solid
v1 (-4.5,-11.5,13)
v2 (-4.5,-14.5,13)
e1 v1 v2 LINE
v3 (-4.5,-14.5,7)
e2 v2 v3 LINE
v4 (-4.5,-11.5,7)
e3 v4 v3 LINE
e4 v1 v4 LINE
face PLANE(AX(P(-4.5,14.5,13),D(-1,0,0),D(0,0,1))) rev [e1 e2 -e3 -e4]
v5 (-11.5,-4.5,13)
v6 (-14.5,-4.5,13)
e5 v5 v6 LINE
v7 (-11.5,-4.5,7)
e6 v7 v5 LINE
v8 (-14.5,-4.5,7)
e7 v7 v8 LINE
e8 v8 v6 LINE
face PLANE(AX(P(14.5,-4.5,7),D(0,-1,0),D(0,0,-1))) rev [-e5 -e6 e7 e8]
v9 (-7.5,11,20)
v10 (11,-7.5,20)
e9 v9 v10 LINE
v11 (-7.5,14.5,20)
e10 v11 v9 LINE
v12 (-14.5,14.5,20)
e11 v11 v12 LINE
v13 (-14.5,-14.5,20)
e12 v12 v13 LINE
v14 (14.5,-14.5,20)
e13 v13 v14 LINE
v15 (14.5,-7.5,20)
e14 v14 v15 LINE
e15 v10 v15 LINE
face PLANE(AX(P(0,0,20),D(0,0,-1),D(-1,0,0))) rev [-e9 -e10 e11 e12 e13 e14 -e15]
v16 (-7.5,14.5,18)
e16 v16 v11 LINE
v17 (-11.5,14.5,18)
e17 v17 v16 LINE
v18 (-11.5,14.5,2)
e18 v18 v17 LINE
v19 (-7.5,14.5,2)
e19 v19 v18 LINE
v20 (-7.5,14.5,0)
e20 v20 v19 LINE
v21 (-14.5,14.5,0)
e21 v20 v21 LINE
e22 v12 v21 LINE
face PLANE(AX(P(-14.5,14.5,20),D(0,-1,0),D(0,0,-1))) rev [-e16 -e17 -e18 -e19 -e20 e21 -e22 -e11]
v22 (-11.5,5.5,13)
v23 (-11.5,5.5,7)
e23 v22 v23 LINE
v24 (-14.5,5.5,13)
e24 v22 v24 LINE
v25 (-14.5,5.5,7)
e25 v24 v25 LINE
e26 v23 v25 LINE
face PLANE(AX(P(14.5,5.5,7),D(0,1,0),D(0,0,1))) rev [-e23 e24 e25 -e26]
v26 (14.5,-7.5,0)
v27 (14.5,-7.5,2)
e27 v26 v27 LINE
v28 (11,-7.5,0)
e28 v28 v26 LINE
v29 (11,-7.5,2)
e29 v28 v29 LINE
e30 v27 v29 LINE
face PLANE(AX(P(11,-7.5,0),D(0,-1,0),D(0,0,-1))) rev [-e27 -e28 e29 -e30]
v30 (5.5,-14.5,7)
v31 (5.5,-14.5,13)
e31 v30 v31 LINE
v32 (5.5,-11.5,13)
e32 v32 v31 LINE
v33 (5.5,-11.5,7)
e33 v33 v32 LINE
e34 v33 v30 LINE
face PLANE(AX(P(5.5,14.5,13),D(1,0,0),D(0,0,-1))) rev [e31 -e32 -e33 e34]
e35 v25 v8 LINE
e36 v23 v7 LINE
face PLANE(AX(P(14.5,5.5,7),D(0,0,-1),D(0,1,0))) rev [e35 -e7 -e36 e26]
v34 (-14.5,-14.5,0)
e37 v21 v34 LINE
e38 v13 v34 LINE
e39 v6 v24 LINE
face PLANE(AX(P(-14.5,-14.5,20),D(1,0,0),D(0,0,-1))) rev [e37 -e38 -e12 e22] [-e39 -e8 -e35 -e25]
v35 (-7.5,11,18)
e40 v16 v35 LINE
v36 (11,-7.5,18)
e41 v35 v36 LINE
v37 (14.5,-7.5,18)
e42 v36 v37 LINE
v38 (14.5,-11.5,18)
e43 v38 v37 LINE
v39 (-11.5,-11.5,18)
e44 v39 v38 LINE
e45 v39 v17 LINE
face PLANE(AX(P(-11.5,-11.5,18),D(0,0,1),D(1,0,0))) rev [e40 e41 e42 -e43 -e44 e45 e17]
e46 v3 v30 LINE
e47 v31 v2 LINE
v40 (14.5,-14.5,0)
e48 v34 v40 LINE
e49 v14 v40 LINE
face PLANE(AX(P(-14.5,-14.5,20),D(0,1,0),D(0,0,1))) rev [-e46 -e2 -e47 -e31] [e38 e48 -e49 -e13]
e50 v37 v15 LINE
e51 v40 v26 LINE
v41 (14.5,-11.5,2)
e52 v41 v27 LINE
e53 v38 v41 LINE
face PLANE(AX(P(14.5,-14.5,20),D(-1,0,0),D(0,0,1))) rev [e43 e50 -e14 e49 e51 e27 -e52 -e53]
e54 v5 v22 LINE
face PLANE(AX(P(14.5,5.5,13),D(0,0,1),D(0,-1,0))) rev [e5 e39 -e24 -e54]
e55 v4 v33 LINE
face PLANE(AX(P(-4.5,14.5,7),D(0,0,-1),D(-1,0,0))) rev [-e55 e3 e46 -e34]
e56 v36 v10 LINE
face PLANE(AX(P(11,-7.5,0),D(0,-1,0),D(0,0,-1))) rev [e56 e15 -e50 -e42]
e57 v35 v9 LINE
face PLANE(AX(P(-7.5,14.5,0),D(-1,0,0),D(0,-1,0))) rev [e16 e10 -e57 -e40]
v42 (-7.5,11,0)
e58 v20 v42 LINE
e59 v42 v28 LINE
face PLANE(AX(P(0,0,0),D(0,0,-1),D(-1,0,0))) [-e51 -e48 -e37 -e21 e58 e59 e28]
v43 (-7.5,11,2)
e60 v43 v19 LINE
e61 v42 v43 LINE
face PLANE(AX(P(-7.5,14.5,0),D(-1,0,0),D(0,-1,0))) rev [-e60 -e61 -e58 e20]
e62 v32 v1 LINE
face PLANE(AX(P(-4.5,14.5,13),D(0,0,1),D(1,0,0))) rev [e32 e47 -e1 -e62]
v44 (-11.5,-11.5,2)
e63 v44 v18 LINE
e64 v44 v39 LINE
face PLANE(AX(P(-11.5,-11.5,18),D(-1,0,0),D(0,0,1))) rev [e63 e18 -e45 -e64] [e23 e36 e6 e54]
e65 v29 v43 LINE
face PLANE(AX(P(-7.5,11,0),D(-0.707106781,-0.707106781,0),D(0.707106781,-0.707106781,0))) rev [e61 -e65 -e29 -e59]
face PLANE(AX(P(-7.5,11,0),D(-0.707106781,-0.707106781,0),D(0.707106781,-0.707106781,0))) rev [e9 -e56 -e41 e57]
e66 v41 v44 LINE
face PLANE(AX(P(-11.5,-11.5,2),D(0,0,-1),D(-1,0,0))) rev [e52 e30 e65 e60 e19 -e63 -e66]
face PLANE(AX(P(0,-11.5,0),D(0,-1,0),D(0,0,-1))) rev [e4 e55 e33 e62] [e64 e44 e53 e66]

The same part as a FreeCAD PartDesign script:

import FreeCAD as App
import Part
import Sketcher
Q = App.Units.Quantity


def add_polygon(sketch, points):
    """Adds a closed chain of lines whose ends are joined by coincident constraints."""
    first, n = sketch.GeometryCount, len(points)
    for a, b in zip(points, points[1:] + points[:1]):
        sketch.addGeometry(Part.LineSegment(App.Vector(*a, 0), App.Vector(*b, 0)), False)
    for i in range(n):
        sketch.addConstraint(Sketcher.Constraint("Coincident", first + i, 2, first + (i + 1) % n, 1))

doc = App.newDocument("Part")
body = doc.addObject("PartDesign::Body", "Body")

# Sketch on XY plane
sketch1 = body.newObject("Sketcher::SketchObject", "Sketch")
sketch1.AttachmentSupport = (doc.getObject("XY_Plane"), [""])
sketch1.MapMode = "FlatFace"
add_polygon(sketch1, [(-14, 14), (-14, -14), (14, -14), (14, 14)])  # lines 0-3
sketch1.addConstraint([
    Sketcher.Constraint("Vertical", 0),
    Sketcher.Constraint("Horizontal", 1),
    Sketcher.Constraint("Vertical", 2),
    Sketcher.Constraint("Horizontal", 3),
    Sketcher.Constraint("Symmetric", 0, 2, 2, 2, -1, 1),
    Sketcher.Constraint("Equal", 3, 0),
    Sketcher.Constraint("DistanceX", 1, 1, 1, 2, Q("29 mm")),
])
pad1 = body.newObject("PartDesign::Pad", "Pad")
pad1.Profile = sketch1
pad1.Length = 20

# Sketch on XZ plane
sketch2 = body.newObject("Sketcher::SketchObject", "Sketch001")
sketch2.AttachmentSupport = (doc.getObject("XZ_Plane"), [""])
sketch2.MapMode = "FlatFace"
sketch2.AttachmentOffset = App.Placement(App.Vector(0, 0, -14.5), App.Rotation())
add_polygon(sketch2, [(-12, 2), (-12, 18), (14, 18), (14, 2)])  # lines 0-3
sketch2.addConstraint([
    Sketcher.Constraint("Vertical", 0),
    Sketcher.Constraint("Horizontal", 1),
    Sketcher.Constraint("Vertical", 2),
    Sketcher.Constraint("Horizontal", 3),
    Sketcher.Constraint("DistanceX", 1, 1, 1, 2, Q("26 mm")),
    Sketcher.Constraint("DistanceY", 0, 1, 0, 2, Q("16 mm")),
    Sketcher.Constraint("DistanceY", -1, 1, 0, 2, Q("18 mm")),
    Sketcher.Constraint("DistanceX", 0, 2, -1, 1, Q("11.5 mm")),
])
pocket1 = body.newObject("PartDesign::Pocket", "Pocket")
pocket1.Profile = sketch2
pocket1.Length = 26
pocket1.Reversed = True

# Sketch on XY plane
sketch3 = body.newObject("Sketcher::SketchObject", "Sketch002")
sketch3.AttachmentSupport = (doc.getObject("XY_Plane"), [""])
sketch3.MapMode = "FlatFace"
sketch3.AttachmentOffset = App.Placement(App.Vector(0, 0, 20), App.Rotation())
add_polygon(sketch3, [(-7.5, 14.5), (-7.5, 11), (11, -7.5), (14.5, -7.5), (14.5, 14.5)])  # lines 0-4
sketch3.addConstraint([
    Sketcher.Constraint("Vertical", 0),
    Sketcher.Constraint("Horizontal", 2),
    Sketcher.Constraint("Vertical", 3),
    Sketcher.Constraint("Horizontal", 4),
    Sketcher.Constraint("Equal", 2, 0),
    Sketcher.Constraint("Equal", 4, 3),
    Sketcher.Constraint("DistanceX", 4, 2, 4, 1, Q("22 mm")),
    Sketcher.Constraint("DistanceX", 2, 1, 2, 2, Q("3.5 mm")),
    Sketcher.Constraint("DistanceY", -1, 1, 0, 2, Q("11 mm")),
    Sketcher.Constraint("DistanceX", -1, 1, 1, 2, Q("11 mm")),
])
pocket2 = body.newObject("PartDesign::Pocket", "Pocket001")
pocket2.Profile = sketch3
pocket2.Type = "ThroughAll"

# Sketch on XZ plane
sketch4 = body.newObject("Sketcher::SketchObject", "Sketch003")
sketch4.AttachmentSupport = (doc.getObject("XZ_Plane"), [""])
sketch4.MapMode = "FlatFace"
sketch4.AttachmentOffset = App.Placement(App.Vector(0, 0, 14.5), App.Rotation())
add_polygon(sketch4, [(-4, 13), (-4, 7), (6, 7), (6, 13)])  # lines 0-3
sketch4.addConstraint([
    Sketcher.Constraint("Vertical", 0),
    Sketcher.Constraint("Horizontal", 1),
    Sketcher.Constraint("Vertical", 2),
    Sketcher.Constraint("Horizontal", 3),
    Sketcher.Constraint("DistanceX", 1, 1, 1, 2, Q("10 mm")),
    Sketcher.Constraint("DistanceY", 0, 2, 0, 1, Q("6 mm")),
    Sketcher.Constraint("DistanceY", -1, 1, 0, 2, Q("7 mm")),
    Sketcher.Constraint("DistanceX", 0, 2, -1, 1, Q("4.5 mm")),
])
pocket3 = body.newObject("PartDesign::Pocket", "Pocket002")
pocket3.Profile = sketch4
pocket3.Type = "ThroughAll"

# Sketch on YZ plane
sketch5 = body.newObject("Sketcher::SketchObject", "Sketch004")
sketch5.AttachmentSupport = (doc.getObject("YZ_Plane"), [""])
sketch5.MapMode = "FlatFace"
sketch5.AttachmentOffset = App.Placement(App.Vector(0, 0, -14.5), App.Rotation())
add_polygon(sketch5, [(6, 7), (-4, 7), (-4, 13), (6, 13)])  # lines 0-3
sketch5.addConstraint([
    Sketcher.Constraint("Horizontal", 0),
    Sketcher.Constraint("Vertical", 1),
    Sketcher.Constraint("Horizontal", 2),
    Sketcher.Constraint("Vertical", 3),
    Sketcher.Constraint("DistanceX", 0, 2, 0, 1, Q("10 mm")),
    Sketcher.Constraint("DistanceY", 1, 1, 1, 2, Q("6 mm")),
    Sketcher.Constraint("DistanceY", -1, 1, 0, 2, Q("7 mm")),
    Sketcher.Constraint("DistanceX", 0, 2, -1, 1, Q("4.5 mm")),
])
pocket4 = body.newObject("PartDesign::Pocket", "Pocket003")
pocket4.Profile = sketch5
pocket4.Type = "ThroughAll"
pocket4.Reversed = True

doc.recompute()
